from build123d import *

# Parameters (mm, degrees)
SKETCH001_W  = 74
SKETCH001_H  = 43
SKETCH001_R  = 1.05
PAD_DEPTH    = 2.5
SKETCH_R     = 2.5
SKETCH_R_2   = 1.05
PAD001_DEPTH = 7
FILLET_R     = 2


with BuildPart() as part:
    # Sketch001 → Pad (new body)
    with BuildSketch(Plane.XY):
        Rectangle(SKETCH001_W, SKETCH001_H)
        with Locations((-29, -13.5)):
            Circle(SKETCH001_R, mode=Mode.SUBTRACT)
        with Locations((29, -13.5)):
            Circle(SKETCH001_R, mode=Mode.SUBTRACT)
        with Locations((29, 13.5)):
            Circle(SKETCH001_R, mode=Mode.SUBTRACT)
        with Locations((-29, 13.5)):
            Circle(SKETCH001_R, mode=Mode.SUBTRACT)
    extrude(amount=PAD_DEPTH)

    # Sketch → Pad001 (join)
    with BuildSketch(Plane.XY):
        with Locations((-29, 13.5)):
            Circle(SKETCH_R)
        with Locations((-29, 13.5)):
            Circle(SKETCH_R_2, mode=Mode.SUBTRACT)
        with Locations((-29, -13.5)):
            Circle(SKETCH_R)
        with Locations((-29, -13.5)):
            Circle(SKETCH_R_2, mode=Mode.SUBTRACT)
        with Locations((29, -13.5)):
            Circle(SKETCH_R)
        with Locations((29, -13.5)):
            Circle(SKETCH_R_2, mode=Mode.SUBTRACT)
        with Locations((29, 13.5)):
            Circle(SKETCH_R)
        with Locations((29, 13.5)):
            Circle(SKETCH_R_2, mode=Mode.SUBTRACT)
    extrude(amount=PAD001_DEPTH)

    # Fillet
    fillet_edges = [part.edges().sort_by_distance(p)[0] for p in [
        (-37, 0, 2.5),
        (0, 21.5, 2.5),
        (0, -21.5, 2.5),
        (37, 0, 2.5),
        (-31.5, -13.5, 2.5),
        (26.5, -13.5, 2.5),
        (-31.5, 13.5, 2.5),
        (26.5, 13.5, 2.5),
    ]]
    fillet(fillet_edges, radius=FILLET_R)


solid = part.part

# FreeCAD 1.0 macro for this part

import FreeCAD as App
import Part
import Sketcher

V = App.Vector
Q = App.Units.Quantity


def edges_at(feature, points):
    """Names of the edges that pass closest to the given points."""
    edges = feature.Shape.Edges
    near = lambda p: min(range(len(edges)), key=lambda i: edges[i].distToShape(Part.Vertex(*p))[0])
    return sorted({f"Edge{near(p) + 1}" for p in points})


def add_polygon(sketch, points):
    """Adds a closed chain of lines whose ends are joined by coincident constraints."""
    first, n = sketch.GeometryCount, len(points)
    for a, b in zip(points, points[1:] + points[:1]):
        sketch.addGeometry(Part.LineSegment(App.Vector(*a, 0), App.Vector(*b, 0)), False)
    for i in range(n):
        sketch.addConstraint(Sketcher.Constraint("Coincident", first + i, 2, first + (i + 1) % n, 1))

doc = App.newDocument("Part")
body = doc.addObject("PartDesign::Body", "Body")

# Sketch on XY plane
sketch1 = body.newObject("Sketcher::SketchObject", "Sketch")
sketch1.AttachmentSupport = (doc.getObject("XY_Plane"), [""])
sketch1.MapMode = "FlatFace"
add_polygon(sketch1, [(-37, 21.5), (-37, -21.5), (37, -21.5), (37, 21.5)])  # lines 0-3
sketch1.addGeometry(Part.Circle(V(-29, -13.5, 0), V(0, 0, 1), 1.1), False)  # 4
sketch1.addGeometry(Part.Circle(V(29, -13.5, 0), V(0, 0, 1), 1.1), False)  # 5
sketch1.addGeometry(Part.Circle(V(-29, 13.5, 0), V(0, 0, 1), 1.1), False)  # 6
sketch1.addGeometry(Part.Circle(V(29, 13.5, 0), V(0, 0, 1), 1.1), False)  # 7
sketch1.addConstraint(Sketcher.Constraint("Vertical", 0))
sketch1.addConstraint(Sketcher.Constraint("Horizontal", 1))
sketch1.addConstraint(Sketcher.Constraint("Vertical", 2))
sketch1.addConstraint(Sketcher.Constraint("Horizontal", 3))
sketch1.addConstraint(Sketcher.Constraint("Equal", 4, 5))
sketch1.addConstraint(Sketcher.Constraint("Equal", 5, 6))
sketch1.addConstraint(Sketcher.Constraint("Equal", 6, 7))
sketch1.addConstraint(Sketcher.Constraint("Symmetric", 5, 3, 6, 3, -1, 1))
sketch1.addConstraint(Sketcher.Constraint("Symmetric", 4, 3, 7, 3, -1, 1))
sketch1.addConstraint(Sketcher.Constraint("Symmetric", 0, 2, 2, 2, -1, 1))
sketch1.addConstraint(Sketcher.Constraint("Symmetric", 4, 3, 5, 3, -2))
sketch1.addConstraint(Sketcher.Constraint("Diameter", 4, Q("2.1 mm")))
sketch1.addConstraint(Sketcher.Constraint("DistanceX", 1, 1, 1, 2, Q("74 mm")))
sketch1.addConstraint(Sketcher.Constraint("DistanceY", 0, 2, 0, 1, Q("43 mm")))
sketch1.addConstraint(Sketcher.Constraint("DistanceX", 4, 3, -1, 1, Q("29 mm")))
sketch1.addConstraint(Sketcher.Constraint("DistanceY", 4, 3, 6, 3, Q("27 mm")))
pad1 = body.newObject("PartDesign::Pad", "Pad")
pad1.Profile = sketch1
pad1.Length = 2.5

# Sketch on XY plane
sketch2 = body.newObject("Sketcher::SketchObject", "Sketch001")
sketch2.AttachmentSupport = (doc.getObject("XY_Plane"), [""])
sketch2.MapMode = "FlatFace"
sketch2.addGeometry(Part.Circle(V(-29, 13.5, 0), V(0, 0, 1), 2.5), False)
sketch2.addGeometry(Part.Circle(V(-29, 13.5, 0), V(0, 0, 1), 1.1), False)
sketch2.addGeometry(Part.Circle(V(-29, -13.5, 0), V(0, 0, 1), 2.5), False)
sketch2.addGeometry(Part.Circle(V(-29, -13.5, 0), V(0, 0, 1), 1.1), False)
sketch2.addGeometry(Part.Circle(V(29, -13.5, 0), V(0, 0, 1), 2.5), False)
sketch2.addGeometry(Part.Circle(V(29, -13.5, 0), V(0, 0, 1), 1.1), False)
sketch2.addGeometry(Part.Circle(V(29, 13.5, 0), V(0, 0, 1), 2.5), False)
sketch2.addGeometry(Part.Circle(V(29, 13.5, 0), V(0, 0, 1), 1.1), False)
sketch2.addConstraint(Sketcher.Constraint("Coincident", 1, 3, 0, 3))
sketch2.addConstraint(Sketcher.Constraint("Coincident", 3, 3, 2, 3))
sketch2.addConstraint(Sketcher.Constraint("Coincident", 5, 3, 4, 3))
sketch2.addConstraint(Sketcher.Constraint("Coincident", 7, 3, 6, 3))
sketch2.addConstraint(Sketcher.Constraint("Equal", 0, 2))
sketch2.addConstraint(Sketcher.Constraint("Equal", 1, 3))
sketch2.addConstraint(Sketcher.Constraint("Equal", 2, 4))
sketch2.addConstraint(Sketcher.Constraint("Equal", 3, 5))
sketch2.addConstraint(Sketcher.Constraint("Equal", 4, 6))
sketch2.addConstraint(Sketcher.Constraint("Equal", 5, 7))
sketch2.addConstraint(Sketcher.Constraint("Symmetric", 0, 3, 4, 3, -1, 1))
sketch2.addConstraint(Sketcher.Constraint("Symmetric", 2, 3, 6, 3, -1, 1))
sketch2.addConstraint(Sketcher.Constraint("Symmetric", 2, 3, 4, 3, -2))
sketch2.addConstraint(Sketcher.Constraint("Diameter", 0, Q("5 mm")))
sketch2.addConstraint(Sketcher.Constraint("Diameter", 1, Q("2.1 mm")))
sketch2.addConstraint(Sketcher.Constraint("DistanceX", 0, 3, -1, 1, Q("29 mm")))
sketch2.addConstraint(Sketcher.Constraint("DistanceY", 2, 3, 0, 3, Q("27 mm")))
pad2 = body.newObject("PartDesign::Pad", "Pad001")
pad2.Profile = sketch2
pad2.Length = 7
doc.recompute()

fillet = body.newObject("PartDesign::Fillet", "Fillet")
fillet.Base = (pad2, edges_at(pad2, [
    (-37, 0, 2.5),
    (0, 21.5, 2.5),
    (0, -21.5, 2.5),
    (37, 0, 2.5),
    (-31.5, -13.5, 2.5),
    (26.5, -13.5, 2.5),
    (-31.5, 13.5, 2.5),
    (26.5, 13.5, 2.5),
]))
fillet.Radius = 2

doc.recompute()
